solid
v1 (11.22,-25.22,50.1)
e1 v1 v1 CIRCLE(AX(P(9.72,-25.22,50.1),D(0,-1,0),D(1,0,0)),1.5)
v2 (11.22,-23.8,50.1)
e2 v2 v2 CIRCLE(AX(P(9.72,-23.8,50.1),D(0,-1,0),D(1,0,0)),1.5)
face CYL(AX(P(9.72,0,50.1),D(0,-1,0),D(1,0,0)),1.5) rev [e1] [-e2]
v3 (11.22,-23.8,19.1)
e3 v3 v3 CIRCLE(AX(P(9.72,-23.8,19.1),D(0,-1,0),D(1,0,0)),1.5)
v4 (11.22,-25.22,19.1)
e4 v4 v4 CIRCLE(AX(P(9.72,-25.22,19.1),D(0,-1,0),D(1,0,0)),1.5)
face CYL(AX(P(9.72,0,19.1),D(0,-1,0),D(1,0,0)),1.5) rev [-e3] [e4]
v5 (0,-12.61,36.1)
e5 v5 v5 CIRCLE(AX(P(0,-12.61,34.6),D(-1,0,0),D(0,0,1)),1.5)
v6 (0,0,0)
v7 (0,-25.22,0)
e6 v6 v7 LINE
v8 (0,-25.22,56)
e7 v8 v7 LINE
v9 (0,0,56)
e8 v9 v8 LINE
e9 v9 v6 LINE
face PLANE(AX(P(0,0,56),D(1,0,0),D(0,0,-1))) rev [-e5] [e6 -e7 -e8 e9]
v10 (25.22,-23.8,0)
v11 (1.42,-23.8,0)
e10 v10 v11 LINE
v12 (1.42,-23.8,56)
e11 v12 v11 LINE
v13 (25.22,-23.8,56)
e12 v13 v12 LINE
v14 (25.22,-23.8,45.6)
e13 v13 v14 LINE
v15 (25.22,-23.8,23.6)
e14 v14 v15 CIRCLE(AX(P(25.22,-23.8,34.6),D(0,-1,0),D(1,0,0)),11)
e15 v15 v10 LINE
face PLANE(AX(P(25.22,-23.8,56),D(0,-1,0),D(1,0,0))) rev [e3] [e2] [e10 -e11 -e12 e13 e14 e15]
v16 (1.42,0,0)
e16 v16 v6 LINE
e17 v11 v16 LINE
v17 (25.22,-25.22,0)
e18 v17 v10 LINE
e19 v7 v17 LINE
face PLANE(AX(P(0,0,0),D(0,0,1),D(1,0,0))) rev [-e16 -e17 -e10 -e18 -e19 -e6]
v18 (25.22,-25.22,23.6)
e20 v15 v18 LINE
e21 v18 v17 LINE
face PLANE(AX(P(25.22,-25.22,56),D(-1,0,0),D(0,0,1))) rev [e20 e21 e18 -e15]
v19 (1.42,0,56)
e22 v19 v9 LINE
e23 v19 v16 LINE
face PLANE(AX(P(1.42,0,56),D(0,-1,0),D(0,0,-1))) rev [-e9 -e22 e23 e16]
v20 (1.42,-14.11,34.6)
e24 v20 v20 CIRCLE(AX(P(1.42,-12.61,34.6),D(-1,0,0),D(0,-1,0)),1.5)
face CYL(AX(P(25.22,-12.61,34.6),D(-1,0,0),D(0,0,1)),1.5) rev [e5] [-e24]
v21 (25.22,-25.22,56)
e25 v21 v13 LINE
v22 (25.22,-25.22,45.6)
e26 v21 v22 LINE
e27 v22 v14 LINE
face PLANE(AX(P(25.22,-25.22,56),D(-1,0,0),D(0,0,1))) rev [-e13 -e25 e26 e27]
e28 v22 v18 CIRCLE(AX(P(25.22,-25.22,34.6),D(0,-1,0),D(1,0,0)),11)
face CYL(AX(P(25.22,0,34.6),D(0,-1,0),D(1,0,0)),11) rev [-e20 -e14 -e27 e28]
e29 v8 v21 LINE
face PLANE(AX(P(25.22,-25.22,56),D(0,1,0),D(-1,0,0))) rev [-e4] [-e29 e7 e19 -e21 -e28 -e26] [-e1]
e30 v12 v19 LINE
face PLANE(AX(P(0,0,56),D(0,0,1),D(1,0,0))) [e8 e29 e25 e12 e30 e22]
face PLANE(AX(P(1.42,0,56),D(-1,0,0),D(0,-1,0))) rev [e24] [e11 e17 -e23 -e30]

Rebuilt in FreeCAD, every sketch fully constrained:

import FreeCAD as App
import Part
import Sketcher
from FreeCAD import Vector

doc = App.newDocument("Part")
body = doc.addObject("PartDesign::Body", "Body")

sketch1 = body.newObject("Sketcher::SketchObject", "Sketch")
sketch1.AttachmentSupport = (doc.getObject("XY_Plane"), [""])
sketch1.MapMode = "FlatFace"
sketch1.addGeometry(Part.LineSegment(Vector(0, 0, 0), Vector(0, -25.2, 0)), False)
sketch1.addGeometry(Part.LineSegment(Vector(0, -25.2, 0), Vector(25.2, -25.2, 0)), False)
sketch1.addGeometry(Part.LineSegment(Vector(25.2, -25.2, 0), Vector(25.2, -23.8, 0)), False)
sketch1.addGeometry(Part.LineSegment(Vector(25.2, -23.8, 0), Vector(1.4, -23.8, 0)), False)
sketch1.addGeometry(Part.LineSegment(Vector(1.4, -23.8, 0), Vector(1.4, 0, 0)), False)
sketch1.addGeometry(Part.LineSegment(Vector(1.4, 0, 0), Vector(0, 0, 0)), False)
sketch1.addConstraint(Sketcher.Constraint("Coincident", 0, 2, 1, 1))
sketch1.addConstraint(Sketcher.Constraint("Coincident", 1, 2, 2, 1))
sketch1.addConstraint(Sketcher.Constraint("Coincident", 2, 2, 3, 1))
sketch1.addConstraint(Sketcher.Constraint("Coincident", 3, 2, 4, 1))
sketch1.addConstraint(Sketcher.Constraint("Coincident", 4, 2, 5, 1))
sketch1.addConstraint(Sketcher.Constraint("Coincident", 5, 2, 0, 1))
sketch1.addConstraint(Sketcher.Constraint("Vertical", 0))
sketch1.addConstraint(Sketcher.Constraint("Horizontal", 1))
sketch1.addConstraint(Sketcher.Constraint("Vertical", 2))
sketch1.addConstraint(Sketcher.Constraint("Horizontal", 3))
sketch1.addConstraint(Sketcher.Constraint("Vertical", 4))
sketch1.addConstraint(Sketcher.Constraint("Horizontal", 5))
sketch1.addConstraint(Sketcher.Constraint("Coincident", 5, 2, -1, 1))
sketch1.addConstraint(Sketcher.Constraint("Equal", 1, 0))
sketch1.addConstraint(Sketcher.Constraint("Equal", 5, 2))
sketch1.addConstraint(Sketcher.Constraint("DistanceX", 3, 2, 3, 1, 23.8))
sketch1.addConstraint(Sketcher.Constraint("DistanceX", 1, 1, 1, 2, 25.22))
pad1 = body.newObject("PartDesign::Pad", "Pad")
pad1.Profile = sketch1
pad1.Length = 56

sketch2 = body.newObject("Sketcher::SketchObject", "Sketch001")
sketch2.AttachmentSupport = (doc.getObject("YZ_Plane"), [""])
sketch2.MapMode = "FlatFace"
sketch2.addGeometry(Part.Circle(Vector(-12.6, 34.6, 0), Vector(0, 0, 1), 1.5), False)
sketch2.addConstraint(Sketcher.Constraint("Diameter", 0, 3.0))
sketch2.addConstraint(Sketcher.Constraint("DistanceY", -1, 1, 0, 3, 34.6))
sketch2.addConstraint(Sketcher.Constraint("DistanceX", 0, 3, -1, 1, 12.61))
pocket1 = body.newObject("PartDesign::Pocket", "Pocket")
pocket1.Profile = sketch2
pocket1.Type = "ThroughAll"
pocket1.Reversed = True

sketch3 = body.newObject("Sketcher::SketchObject", "Sketch002")
sketch3.AttachmentSupport = (doc.getObject("XZ_Plane"), [""])
sketch3.MapMode = "FlatFace"
sketch3.AttachmentOffset = App.Placement(Vector(0, 0, 25.22), App.Rotation())
sketch3.addGeometry(Part.Circle(Vector(25, 35, 0), Vector(0, 0, 1), 11), False)
sketch3.addConstraint(Sketcher.Constraint("Diameter", 0, 22.0))
sketch3.addConstraint(Sketcher.Constraint("DistanceY", -1, 1, 0, 3, 34.6))
sketch3.addConstraint(Sketcher.Constraint("DistanceX", -1, 1, 0, 3, 25.22))
pocket2 = body.newObject("PartDesign::Pocket", "Pocket001")
pocket2.Profile = sketch3
pocket2.Type = "ThroughAll"

sketch4 = body.newObject("Sketcher::SketchObject", "Sketch003")
sketch4.AttachmentSupport = (doc.getObject("XZ_Plane"), [""])
sketch4.MapMode = "FlatFace"
sketch4.AttachmentOffset = App.Placement(Vector(0, 0, 25.22), App.Rotation())
sketch4.addGeometry(Part.Circle(Vector(9.7, 19.1, 0), Vector(0, 0, 1), 1.5), False)
sketch4.addConstraint(Sketcher.Constraint("Diameter", 0, 3.0))
sketch4.addConstraint(Sketcher.Constraint("DistanceY", -1, 1, 0, 3, 19.1))
sketch4.addConstraint(Sketcher.Constraint("DistanceX", -1, 1, 0, 3, 9.72))
pocket3 = body.newObject("PartDesign::Pocket", "Pocket002")
pocket3.Profile = sketch4
pocket3.Type = "ThroughAll"

sketch5 = body.newObject("Sketcher::SketchObject", "Sketch004")
sketch5.AttachmentSupport = (doc.getObject("XZ_Plane"), [""])
sketch5.MapMode = "FlatFace"
sketch5.AttachmentOffset = App.Placement(Vector(0, 0, 25.22), App.Rotation())
sketch5.addGeometry(Part.Circle(Vector(9.7, 50.1, 0), Vector(0, 0, 1), 1.5), False)
sketch5.addConstraint(Sketcher.Constraint("Diameter", 0, 3.0))
sketch5.addConstraint(Sketcher.Constraint("DistanceY", -1, 1, 0, 3, 50.1))
sketch5.addConstraint(Sketcher.Constraint("DistanceX", -1, 1, 0, 3, 9.72))
pocket4 = body.newObject("PartDesign::Pocket", "Pocket003")
pocket4.Profile = sketch5
pocket4.Type = "ThroughAll"

doc.recompute()
